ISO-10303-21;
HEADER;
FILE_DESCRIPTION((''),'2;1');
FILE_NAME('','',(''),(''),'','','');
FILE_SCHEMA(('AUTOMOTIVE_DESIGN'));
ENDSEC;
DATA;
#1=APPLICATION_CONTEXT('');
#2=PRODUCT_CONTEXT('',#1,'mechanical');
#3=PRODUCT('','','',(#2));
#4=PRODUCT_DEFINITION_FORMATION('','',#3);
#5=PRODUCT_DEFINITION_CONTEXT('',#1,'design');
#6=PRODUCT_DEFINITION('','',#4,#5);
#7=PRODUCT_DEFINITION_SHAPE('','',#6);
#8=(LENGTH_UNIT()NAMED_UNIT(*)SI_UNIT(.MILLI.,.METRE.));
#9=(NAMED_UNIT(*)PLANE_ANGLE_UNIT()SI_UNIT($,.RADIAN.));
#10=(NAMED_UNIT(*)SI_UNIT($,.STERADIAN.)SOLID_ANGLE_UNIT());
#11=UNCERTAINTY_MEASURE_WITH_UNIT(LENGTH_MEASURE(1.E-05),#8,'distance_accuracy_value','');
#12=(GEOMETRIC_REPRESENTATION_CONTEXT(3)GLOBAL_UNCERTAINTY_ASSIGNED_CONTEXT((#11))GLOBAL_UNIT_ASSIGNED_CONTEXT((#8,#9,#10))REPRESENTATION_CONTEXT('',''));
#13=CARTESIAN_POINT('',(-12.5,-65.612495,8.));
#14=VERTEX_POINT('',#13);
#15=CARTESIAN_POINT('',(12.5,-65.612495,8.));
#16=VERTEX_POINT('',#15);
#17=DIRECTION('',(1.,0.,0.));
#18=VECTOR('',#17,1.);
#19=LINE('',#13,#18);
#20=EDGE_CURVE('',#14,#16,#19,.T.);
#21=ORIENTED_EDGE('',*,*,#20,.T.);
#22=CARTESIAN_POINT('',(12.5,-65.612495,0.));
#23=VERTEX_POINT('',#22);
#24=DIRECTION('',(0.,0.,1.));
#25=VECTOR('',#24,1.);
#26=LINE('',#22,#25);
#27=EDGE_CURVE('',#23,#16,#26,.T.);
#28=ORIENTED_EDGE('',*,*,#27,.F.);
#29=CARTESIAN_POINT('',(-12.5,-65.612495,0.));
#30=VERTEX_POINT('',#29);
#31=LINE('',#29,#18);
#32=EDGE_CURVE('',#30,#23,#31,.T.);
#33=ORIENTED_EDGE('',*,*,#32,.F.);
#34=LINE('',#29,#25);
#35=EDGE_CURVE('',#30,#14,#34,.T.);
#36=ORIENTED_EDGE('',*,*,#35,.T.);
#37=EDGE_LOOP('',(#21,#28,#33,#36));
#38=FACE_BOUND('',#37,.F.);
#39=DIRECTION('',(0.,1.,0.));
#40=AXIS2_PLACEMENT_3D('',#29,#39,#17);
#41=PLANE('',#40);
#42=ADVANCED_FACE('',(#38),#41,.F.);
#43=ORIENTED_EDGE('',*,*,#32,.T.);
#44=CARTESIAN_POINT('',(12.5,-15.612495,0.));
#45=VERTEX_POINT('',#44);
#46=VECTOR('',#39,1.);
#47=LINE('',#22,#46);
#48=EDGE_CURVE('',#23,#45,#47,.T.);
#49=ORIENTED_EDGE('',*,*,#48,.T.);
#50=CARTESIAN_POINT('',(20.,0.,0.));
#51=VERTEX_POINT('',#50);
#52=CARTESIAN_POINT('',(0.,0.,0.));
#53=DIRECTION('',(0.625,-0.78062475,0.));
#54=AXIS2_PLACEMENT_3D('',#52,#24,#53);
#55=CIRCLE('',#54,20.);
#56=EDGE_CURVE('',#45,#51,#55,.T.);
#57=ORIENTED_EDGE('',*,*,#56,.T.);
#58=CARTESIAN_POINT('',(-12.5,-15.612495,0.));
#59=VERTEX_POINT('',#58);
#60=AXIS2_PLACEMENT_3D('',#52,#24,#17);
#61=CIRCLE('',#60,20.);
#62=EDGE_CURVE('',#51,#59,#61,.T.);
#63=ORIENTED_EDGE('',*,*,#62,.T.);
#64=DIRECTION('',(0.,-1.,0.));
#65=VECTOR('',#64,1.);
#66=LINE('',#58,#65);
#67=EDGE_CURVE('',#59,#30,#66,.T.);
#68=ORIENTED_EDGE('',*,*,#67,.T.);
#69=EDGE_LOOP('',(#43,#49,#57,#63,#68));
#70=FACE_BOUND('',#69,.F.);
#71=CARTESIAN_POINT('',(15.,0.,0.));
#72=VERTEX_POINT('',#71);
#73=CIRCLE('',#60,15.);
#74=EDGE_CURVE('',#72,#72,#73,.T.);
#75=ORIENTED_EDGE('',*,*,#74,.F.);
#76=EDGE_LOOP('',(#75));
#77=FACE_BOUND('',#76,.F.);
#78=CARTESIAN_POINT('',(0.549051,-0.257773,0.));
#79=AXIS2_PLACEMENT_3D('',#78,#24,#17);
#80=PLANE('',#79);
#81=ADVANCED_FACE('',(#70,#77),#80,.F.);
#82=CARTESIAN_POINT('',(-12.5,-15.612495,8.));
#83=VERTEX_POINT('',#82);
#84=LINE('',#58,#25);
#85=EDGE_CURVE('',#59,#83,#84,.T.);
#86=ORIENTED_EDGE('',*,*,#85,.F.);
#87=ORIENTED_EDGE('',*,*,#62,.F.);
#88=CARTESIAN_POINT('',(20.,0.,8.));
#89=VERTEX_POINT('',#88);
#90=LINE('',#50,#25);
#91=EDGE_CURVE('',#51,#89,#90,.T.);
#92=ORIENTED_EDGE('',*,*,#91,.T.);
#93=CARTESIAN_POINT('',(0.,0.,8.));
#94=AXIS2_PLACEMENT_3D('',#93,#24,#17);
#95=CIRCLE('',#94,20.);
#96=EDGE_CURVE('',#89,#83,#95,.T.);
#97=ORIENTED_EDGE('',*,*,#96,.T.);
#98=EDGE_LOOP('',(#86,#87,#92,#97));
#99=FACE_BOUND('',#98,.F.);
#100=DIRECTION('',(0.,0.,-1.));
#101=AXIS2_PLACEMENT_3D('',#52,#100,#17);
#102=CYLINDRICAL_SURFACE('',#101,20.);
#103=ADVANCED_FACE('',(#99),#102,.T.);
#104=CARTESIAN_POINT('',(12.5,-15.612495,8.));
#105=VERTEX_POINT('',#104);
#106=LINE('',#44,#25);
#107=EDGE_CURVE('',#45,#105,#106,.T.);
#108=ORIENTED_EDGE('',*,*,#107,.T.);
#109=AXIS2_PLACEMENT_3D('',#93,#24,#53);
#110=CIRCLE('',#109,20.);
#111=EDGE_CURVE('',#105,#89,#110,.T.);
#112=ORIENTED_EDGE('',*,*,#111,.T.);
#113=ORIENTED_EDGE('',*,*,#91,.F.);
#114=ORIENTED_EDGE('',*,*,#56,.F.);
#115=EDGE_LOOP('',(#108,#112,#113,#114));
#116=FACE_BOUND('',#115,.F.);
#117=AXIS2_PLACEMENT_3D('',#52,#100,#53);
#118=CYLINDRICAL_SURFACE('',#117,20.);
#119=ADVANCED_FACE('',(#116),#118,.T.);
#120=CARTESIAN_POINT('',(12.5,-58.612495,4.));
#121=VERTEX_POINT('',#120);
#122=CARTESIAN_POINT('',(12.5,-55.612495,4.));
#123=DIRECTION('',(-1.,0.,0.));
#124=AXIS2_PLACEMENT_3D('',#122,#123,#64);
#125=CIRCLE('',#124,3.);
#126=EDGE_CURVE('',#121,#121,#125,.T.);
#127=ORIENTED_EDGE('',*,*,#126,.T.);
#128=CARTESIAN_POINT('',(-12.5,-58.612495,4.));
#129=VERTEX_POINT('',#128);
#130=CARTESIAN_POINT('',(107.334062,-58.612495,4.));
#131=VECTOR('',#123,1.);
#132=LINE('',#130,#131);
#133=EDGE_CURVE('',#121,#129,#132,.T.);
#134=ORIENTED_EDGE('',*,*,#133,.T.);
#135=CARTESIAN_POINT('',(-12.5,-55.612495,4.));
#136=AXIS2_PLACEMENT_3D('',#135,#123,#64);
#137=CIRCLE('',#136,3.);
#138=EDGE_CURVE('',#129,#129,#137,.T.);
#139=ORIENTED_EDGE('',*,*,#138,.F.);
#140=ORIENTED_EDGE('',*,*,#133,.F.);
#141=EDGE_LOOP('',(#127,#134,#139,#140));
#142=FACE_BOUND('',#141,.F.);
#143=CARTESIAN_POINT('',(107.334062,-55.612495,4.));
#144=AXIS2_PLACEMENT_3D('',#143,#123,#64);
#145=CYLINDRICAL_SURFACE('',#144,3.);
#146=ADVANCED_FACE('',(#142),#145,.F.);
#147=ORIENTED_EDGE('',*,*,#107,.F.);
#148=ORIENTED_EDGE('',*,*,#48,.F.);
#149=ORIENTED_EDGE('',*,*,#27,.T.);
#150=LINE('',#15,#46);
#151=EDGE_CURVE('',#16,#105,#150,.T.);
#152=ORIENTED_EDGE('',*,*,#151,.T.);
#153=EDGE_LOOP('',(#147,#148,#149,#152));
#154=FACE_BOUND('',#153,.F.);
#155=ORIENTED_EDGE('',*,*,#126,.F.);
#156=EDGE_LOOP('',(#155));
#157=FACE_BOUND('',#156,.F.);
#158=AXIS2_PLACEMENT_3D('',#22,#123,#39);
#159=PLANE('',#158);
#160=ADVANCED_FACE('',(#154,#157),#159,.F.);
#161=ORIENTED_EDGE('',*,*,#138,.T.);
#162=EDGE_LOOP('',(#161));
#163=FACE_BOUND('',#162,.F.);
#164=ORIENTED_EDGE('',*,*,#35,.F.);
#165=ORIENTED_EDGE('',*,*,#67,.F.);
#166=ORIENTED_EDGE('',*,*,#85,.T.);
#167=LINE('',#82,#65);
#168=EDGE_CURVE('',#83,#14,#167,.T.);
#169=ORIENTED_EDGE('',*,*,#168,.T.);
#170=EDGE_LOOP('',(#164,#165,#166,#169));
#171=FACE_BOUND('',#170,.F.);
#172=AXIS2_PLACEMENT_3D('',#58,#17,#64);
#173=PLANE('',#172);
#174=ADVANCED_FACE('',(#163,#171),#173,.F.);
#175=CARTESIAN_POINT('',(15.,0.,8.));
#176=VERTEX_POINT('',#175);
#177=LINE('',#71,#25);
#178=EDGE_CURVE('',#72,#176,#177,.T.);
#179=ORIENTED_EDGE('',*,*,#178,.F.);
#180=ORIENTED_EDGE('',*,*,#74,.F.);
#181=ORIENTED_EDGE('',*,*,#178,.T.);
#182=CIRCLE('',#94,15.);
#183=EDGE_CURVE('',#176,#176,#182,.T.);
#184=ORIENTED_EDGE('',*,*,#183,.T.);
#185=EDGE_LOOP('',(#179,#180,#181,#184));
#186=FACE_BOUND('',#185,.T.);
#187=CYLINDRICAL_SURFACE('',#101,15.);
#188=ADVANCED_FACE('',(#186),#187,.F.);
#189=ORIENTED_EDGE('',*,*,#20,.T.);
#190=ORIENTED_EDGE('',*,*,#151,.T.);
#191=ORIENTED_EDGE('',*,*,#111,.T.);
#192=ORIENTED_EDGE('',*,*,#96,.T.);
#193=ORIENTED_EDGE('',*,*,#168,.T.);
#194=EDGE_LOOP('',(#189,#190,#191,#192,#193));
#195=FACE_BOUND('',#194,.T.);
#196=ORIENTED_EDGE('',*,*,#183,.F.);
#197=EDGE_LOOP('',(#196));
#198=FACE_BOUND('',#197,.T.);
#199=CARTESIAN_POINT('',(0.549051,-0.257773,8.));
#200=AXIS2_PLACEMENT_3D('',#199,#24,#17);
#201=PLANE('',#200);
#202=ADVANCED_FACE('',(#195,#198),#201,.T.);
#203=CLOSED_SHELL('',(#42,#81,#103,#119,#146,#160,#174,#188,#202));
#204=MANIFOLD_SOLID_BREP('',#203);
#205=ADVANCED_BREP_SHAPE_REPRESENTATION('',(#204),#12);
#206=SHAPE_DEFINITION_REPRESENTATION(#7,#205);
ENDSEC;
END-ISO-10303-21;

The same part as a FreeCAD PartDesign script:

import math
import FreeCAD as App
import Part
import Sketcher
from FreeCAD import Vector
Q = App.Units.Quantity

doc = App.newDocument("Part")
body = doc.addObject("PartDesign::Body", "Body")

# Sketch on XY plane
sketch1 = body.newObject("Sketcher::SketchObject", "Sketch")
sketch1.AttachmentSupport = (doc.getObject("XY_Plane"), [""])
sketch1.MapMode = "FlatFace"
sketch1.addGeometry([
    Part.ArcOfCircle(Part.Circle(Vector(0, 0, 0), Vector(0, 0, 1), 20), math.radians(-51), math.radians(0)),  # 0
    Part.ArcOfCircle(Part.Circle(Vector(0, 0, 0), Vector(0, 0, 1), 20), math.radians(0), math.radians(231)),  # 1
    Part.LineSegment(Vector(-12, -16, 0), Vector(-12, -66, 0)),  # 2
    Part.LineSegment(Vector(-12, -66, 0), Vector(12, -66, 0)),  # 3
    Part.LineSegment(Vector(12, -66, 0), Vector(12, -16, 0)),  # 4
    Part.Circle(Vector(0, 0, 0), Vector(0, 0, 1), 15),  # 5
], False)
sketch1.addConstraint([
    Sketcher.Constraint("Tangent", 0, 2, 1, 1),
    Sketcher.Constraint("Coincident", 1, 2, 2, 1),
    Sketcher.Constraint("Coincident", 2, 2, 3, 1),
    Sketcher.Constraint("Coincident", 3, 2, 4, 1),
    Sketcher.Constraint("Coincident", 4, 2, 0, 1),
    Sketcher.Constraint("Vertical", 2),
    Sketcher.Constraint("Horizontal", 3),
    Sketcher.Constraint("Vertical", 4),
    Sketcher.Constraint("Coincident", 0, 3, -1, 1),
    Sketcher.Constraint("Coincident", 5, 3, -1, 1),
    Sketcher.Constraint("Equal", 0, 1),
    Sketcher.Constraint("PointOnObject", 0, 2, -1),
    Sketcher.Constraint("Horizontal", 1, 2, 4, 2),
    Sketcher.Constraint("Diameter", 5, Q("30 mm")),
    Sketcher.Constraint("Radius", 0, Q("20 mm")),
    Sketcher.Constraint("DistanceX", 3, 1, 3, 2, Q("25 mm")),
    Sketcher.Constraint("DistanceY", 2, 2, 2, 1, Q("50 mm")),
])
pad1 = body.newObject("PartDesign::Pad", "Pad")
pad1.Profile = sketch1
pad1.Length = 8

# Sketch on YZ plane
sketch2 = body.newObject("Sketcher::SketchObject", "Sketch001")
sketch2.AttachmentSupport = (doc.getObject("YZ_Plane"), [""])
sketch2.MapMode = "FlatFace"
sketch2.AttachmentOffset = App.Placement(Vector(0, 0, 12.5), App.Rotation())
sketch2.addGeometry(Part.Circle(Vector(-55.6, 4, 0), Vector(0, 0, 1), 3), False)
sketch2.addConstraint([
    Sketcher.Constraint("Diameter", 0, Q("6 mm")),
    Sketcher.Constraint("DistanceY", -1, 1, 0, 3, Q("4 mm")),
    Sketcher.Constraint("DistanceX", 0, 3, -1, 1, Q("55.612495 mm")),
])
doc.recompute()
hole = body.newObject("PartDesign::Hole", "Hole")
hole.Profile = sketch2
hole.ThreadType = "None"
hole.Diameter = 6
hole.DepthType = "ThroughAll"

doc.recompute()
